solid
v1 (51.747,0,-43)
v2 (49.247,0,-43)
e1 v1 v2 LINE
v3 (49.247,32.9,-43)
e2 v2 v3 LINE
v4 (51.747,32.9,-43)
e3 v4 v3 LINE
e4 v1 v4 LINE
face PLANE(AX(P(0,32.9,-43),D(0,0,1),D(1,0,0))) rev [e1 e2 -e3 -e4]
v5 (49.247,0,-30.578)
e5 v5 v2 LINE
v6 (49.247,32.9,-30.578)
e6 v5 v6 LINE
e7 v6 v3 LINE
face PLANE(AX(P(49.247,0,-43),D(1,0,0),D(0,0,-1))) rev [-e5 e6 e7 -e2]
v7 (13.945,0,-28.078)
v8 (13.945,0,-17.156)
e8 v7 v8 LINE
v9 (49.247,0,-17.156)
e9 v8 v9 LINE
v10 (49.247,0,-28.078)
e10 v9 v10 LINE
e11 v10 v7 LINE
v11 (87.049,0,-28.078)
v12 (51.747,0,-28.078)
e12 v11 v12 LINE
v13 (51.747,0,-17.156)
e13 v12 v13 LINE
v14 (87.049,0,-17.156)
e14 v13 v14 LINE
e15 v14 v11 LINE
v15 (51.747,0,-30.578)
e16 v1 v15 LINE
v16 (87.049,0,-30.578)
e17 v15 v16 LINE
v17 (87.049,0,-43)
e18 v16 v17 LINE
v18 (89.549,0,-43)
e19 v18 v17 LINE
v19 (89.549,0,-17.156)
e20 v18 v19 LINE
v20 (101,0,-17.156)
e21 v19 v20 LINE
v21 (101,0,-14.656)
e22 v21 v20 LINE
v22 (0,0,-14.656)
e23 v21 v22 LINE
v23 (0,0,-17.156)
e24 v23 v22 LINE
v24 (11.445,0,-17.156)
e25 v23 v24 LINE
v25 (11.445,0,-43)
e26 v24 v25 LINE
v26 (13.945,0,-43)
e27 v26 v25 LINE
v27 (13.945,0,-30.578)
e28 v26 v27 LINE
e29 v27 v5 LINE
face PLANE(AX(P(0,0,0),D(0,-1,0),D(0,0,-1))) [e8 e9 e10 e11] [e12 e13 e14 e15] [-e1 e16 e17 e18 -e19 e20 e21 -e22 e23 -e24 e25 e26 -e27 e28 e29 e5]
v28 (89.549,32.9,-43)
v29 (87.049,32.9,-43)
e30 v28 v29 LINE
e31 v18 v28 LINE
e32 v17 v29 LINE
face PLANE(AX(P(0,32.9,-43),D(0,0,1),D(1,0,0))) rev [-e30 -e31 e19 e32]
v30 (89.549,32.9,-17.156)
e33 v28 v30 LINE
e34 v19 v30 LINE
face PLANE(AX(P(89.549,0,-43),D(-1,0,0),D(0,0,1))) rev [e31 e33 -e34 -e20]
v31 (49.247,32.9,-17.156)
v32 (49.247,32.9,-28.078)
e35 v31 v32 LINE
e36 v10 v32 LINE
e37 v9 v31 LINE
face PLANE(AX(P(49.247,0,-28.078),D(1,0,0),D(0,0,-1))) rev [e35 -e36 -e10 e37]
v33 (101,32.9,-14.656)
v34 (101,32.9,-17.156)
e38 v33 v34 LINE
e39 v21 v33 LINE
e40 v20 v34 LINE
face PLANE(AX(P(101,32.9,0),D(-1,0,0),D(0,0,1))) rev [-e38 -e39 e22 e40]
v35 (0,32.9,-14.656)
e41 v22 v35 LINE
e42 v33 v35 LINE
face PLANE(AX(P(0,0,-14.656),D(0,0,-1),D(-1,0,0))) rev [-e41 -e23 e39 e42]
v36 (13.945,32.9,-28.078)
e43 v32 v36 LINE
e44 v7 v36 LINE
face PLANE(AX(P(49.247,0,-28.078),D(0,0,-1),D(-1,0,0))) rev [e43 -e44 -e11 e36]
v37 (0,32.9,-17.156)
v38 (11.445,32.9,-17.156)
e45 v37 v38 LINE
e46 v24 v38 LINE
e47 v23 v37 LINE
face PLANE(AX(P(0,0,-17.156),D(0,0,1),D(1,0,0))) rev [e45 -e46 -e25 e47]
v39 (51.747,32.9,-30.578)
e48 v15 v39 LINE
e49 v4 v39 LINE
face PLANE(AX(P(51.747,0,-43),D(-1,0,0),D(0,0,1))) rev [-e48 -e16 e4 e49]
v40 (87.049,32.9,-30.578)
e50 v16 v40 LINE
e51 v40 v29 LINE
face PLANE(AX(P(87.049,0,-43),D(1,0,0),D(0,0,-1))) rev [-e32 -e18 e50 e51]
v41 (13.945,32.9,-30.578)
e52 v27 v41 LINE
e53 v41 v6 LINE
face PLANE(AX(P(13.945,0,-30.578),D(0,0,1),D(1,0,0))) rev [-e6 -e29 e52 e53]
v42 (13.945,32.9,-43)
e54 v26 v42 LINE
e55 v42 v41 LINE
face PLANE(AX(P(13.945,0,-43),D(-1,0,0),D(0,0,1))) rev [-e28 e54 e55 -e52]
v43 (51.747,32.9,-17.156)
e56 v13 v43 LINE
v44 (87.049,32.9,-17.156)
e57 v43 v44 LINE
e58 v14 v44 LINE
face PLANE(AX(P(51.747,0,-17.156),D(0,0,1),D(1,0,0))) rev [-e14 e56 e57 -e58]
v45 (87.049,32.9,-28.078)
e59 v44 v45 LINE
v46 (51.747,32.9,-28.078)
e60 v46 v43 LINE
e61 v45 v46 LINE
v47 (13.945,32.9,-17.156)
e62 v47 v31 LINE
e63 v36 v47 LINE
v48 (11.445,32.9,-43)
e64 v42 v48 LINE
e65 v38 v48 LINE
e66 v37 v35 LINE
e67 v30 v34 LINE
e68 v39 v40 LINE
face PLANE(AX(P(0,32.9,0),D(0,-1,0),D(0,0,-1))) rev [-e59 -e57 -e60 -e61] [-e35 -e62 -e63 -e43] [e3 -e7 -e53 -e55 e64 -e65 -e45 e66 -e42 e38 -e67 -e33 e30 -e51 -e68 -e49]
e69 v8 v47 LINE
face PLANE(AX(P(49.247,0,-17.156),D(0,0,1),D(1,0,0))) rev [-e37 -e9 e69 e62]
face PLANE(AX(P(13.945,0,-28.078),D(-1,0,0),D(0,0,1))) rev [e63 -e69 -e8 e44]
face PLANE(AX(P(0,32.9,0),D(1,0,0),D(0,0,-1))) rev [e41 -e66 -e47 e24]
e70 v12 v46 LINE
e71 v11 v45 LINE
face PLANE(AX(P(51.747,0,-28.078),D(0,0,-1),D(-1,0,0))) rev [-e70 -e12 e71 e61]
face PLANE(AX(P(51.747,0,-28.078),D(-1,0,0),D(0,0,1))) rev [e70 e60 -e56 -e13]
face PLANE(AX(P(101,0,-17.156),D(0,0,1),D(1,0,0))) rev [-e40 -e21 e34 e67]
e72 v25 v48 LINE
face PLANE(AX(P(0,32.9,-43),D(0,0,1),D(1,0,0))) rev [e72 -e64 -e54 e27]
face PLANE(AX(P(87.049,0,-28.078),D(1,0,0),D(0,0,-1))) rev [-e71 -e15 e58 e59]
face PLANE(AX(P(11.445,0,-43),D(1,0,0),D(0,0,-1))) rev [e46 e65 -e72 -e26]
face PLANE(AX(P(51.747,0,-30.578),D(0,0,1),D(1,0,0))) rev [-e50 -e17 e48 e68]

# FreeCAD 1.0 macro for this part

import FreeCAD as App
import Part
import Sketcher

V = App.Vector


def add_polygon(sketch, points):
    """Adds a closed chain of lines whose ends are joined by coincident constraints."""
    first, n = sketch.GeometryCount, len(points)
    for a, b in zip(points, points[1:] + points[:1]):
        sketch.addGeometry(Part.LineSegment(App.Vector(*a, 0), App.Vector(*b, 0)), False)
    for i in range(n):
        sketch.addConstraint(Sketcher.Constraint("Coincident", first + i, 2, first + (i + 1) % n, 1))

doc = App.newDocument("Part")
body = doc.addObject("PartDesign::Body", "Body")

# Sketch on XZ plane
sketch1 = body.newObject("Sketcher::SketchObject", "Sketch")
sketch1.AttachmentSupport = (doc.getObject("XZ_Plane"), [""])
sketch1.MapMode = "FlatFace"
add_polygon(sketch1, [(0, -43), (0, 0), (101, 0), (101, -43)])  # lines 0-3
sketch1.addConstraint(Sketcher.Constraint("Vertical", 0))
sketch1.addConstraint(Sketcher.Constraint("Horizontal", 1))
sketch1.addConstraint(Sketcher.Constraint("Vertical", 2))
sketch1.addConstraint(Sketcher.Constraint("Horizontal", 3))
sketch1.addConstraint(Sketcher.Constraint("Coincident", 0, 2, -1, 1))
sketch1.addConstraint(Sketcher.Constraint("DistanceX", 1, 1, 1, 2, 101.0))
sketch1.addConstraint(Sketcher.Constraint("DistanceY", 0, 1, 0, 2, 43.0))
pad1 = body.newObject("PartDesign::Pad", "Pad")
pad1.Profile = sketch1
pad1.Length = 32.9
pad1.Reversed = True

# Sketch on XZ plane
sketch2 = body.newObject("Sketcher::SketchObject", "Sketch001")
sketch2.AttachmentSupport = (doc.getObject("XZ_Plane"), [""])
sketch2.MapMode = "FlatFace"
sketch2.AttachmentOffset = App.Placement(V(0, 0, -32.9), App.Rotation())
add_polygon(sketch2, [(0, -15), (0, 0), (101, 0), (101, -15)])  # lines 0-3
add_polygon(sketch2, [(90, -43), (90, -17), (101, -17), (101, -43)])  # lines 4-7
add_polygon(sketch2, [(0, -43), (0, -17), (11, -17), (11, -43)])  # lines 8-11
add_polygon(sketch2, [(14, -43), (14, -31), (49, -31), (49, -43)])  # lines 12-15
add_polygon(sketch2, [(52, -43), (52, -31), (87, -31), (87, -43)])  # lines 16-19
add_polygon(sketch2, [(52, -28), (52, -17), (87, -17), (87, -28)])  # lines 20-23
add_polygon(sketch2, [(14, -28), (14, -17), (49, -17), (49, -28)])  # lines 24-27
sketch2.addConstraint(Sketcher.Constraint("Vertical", 0))
sketch2.addConstraint(Sketcher.Constraint("Horizontal", 1))
sketch2.addConstraint(Sketcher.Constraint("Vertical", 2))
sketch2.addConstraint(Sketcher.Constraint("Horizontal", 3))
sketch2.addConstraint(Sketcher.Constraint("Vertical", 4))
sketch2.addConstraint(Sketcher.Constraint("Horizontal", 5))
sketch2.addConstraint(Sketcher.Constraint("Vertical", 6))
sketch2.addConstraint(Sketcher.Constraint("Horizontal", 7))
sketch2.addConstraint(Sketcher.Constraint("Vertical", 8))
sketch2.addConstraint(Sketcher.Constraint("Horizontal", 9))
sketch2.addConstraint(Sketcher.Constraint("Vertical", 10))
sketch2.addConstraint(Sketcher.Constraint("Horizontal", 11))
sketch2.addConstraint(Sketcher.Constraint("Vertical", 12))
sketch2.addConstraint(Sketcher.Constraint("Horizontal", 13))
sketch2.addConstraint(Sketcher.Constraint("Vertical", 14))
sketch2.addConstraint(Sketcher.Constraint("Horizontal", 15))
sketch2.addConstraint(Sketcher.Constraint("Vertical", 16))
sketch2.addConstraint(Sketcher.Constraint("Horizontal", 17))
sketch2.addConstraint(Sketcher.Constraint("Vertical", 18))
sketch2.addConstraint(Sketcher.Constraint("Horizontal", 19))
sketch2.addConstraint(Sketcher.Constraint("Vertical", 20))
sketch2.addConstraint(Sketcher.Constraint("Horizontal", 21))
sketch2.addConstraint(Sketcher.Constraint("Vertical", 22))
sketch2.addConstraint(Sketcher.Constraint("Horizontal", 23))
sketch2.addConstraint(Sketcher.Constraint("Vertical", 24))
sketch2.addConstraint(Sketcher.Constraint("Horizontal", 25))
sketch2.addConstraint(Sketcher.Constraint("Vertical", 26))
sketch2.addConstraint(Sketcher.Constraint("Horizontal", 27))
sketch2.addConstraint(Sketcher.Constraint("Coincident", 0, 2, -1, 1))
sketch2.addConstraint(Sketcher.Constraint("PointOnObject", 8, 2, -2))
sketch2.addConstraint(Sketcher.Constraint("Horizontal", 5, 2, 8, 2))
sketch2.addConstraint(Sketcher.Constraint("Horizontal", 7, 2, 10, 2))
sketch2.addConstraint(Sketcher.Constraint("Horizontal", 11, 2, 14, 2))
sketch2.addConstraint(Sketcher.Constraint("Horizontal", 13, 2, 16, 2))
sketch2.addConstraint(Sketcher.Constraint("Horizontal", 15, 2, 18, 2))
sketch2.addConstraint(Sketcher.Constraint("Horizontal", 9, 2, 20, 2))
sketch2.addConstraint(Sketcher.Constraint("Horizontal", 21, 2, 24, 2))
sketch2.addConstraint(Sketcher.Constraint("Horizontal", 23, 2, 26, 2))
sketch2.addConstraint(Sketcher.Constraint("Vertical", 2, 2, 5, 2))
sketch2.addConstraint(Sketcher.Constraint("Vertical", 19, 2, 20, 2))
sketch2.addConstraint(Sketcher.Constraint("Vertical", 18, 2, 21, 2))
sketch2.addConstraint(Sketcher.Constraint("Vertical", 15, 2, 24, 2))
sketch2.addConstraint(Sketcher.Constraint("Vertical", 14, 2, 25, 2))
sketch2.addConstraint(Sketcher.Constraint("Equal", 15, 17))
sketch2.addConstraint(Sketcher.Constraint("DistanceX", 1, 1, 1, 2, 101.0))
sketch2.addConstraint(Sketcher.Constraint("DistanceY", 6, 2, -1, 1, 43.0))
sketch2.addConstraint(Sketcher.Constraint("DistanceY", 4, 2, 2, 2, 2.5))
sketch2.addConstraint(Sketcher.Constraint("DistanceX", 10, 2, 12, 2, 2.5))
sketch2.addConstraint(Sketcher.Constraint("DistanceX", 13, 2, 16, 2, 2.5))
sketch2.addConstraint(Sketcher.Constraint("DistanceX", 17, 2, 7, 2, 2.5))
sketch2.addConstraint(Sketcher.Constraint("DistanceY", 17, 2, 22, 2, 2.5))
sketch2.addConstraint(Sketcher.Constraint("DistanceX", 5, 1, 5, 2, 11.451))
sketch2.addConstraint(Sketcher.Constraint("DistanceX", 9, 1, 9, 2, 11.445))
sketch2.addConstraint(Sketcher.Constraint("DistanceY", 0, 1, 0, 2, 14.656))
sketch2.addConstraint(Sketcher.Constraint("DistanceY", 12, 1, 12, 2, 12.422))
pocket1 = body.newObject("PartDesign::Pocket", "Pocket")
pocket1.Profile = sketch2
pocket1.Length = 32.9
pocket1.Reversed = True

doc.recompute()
